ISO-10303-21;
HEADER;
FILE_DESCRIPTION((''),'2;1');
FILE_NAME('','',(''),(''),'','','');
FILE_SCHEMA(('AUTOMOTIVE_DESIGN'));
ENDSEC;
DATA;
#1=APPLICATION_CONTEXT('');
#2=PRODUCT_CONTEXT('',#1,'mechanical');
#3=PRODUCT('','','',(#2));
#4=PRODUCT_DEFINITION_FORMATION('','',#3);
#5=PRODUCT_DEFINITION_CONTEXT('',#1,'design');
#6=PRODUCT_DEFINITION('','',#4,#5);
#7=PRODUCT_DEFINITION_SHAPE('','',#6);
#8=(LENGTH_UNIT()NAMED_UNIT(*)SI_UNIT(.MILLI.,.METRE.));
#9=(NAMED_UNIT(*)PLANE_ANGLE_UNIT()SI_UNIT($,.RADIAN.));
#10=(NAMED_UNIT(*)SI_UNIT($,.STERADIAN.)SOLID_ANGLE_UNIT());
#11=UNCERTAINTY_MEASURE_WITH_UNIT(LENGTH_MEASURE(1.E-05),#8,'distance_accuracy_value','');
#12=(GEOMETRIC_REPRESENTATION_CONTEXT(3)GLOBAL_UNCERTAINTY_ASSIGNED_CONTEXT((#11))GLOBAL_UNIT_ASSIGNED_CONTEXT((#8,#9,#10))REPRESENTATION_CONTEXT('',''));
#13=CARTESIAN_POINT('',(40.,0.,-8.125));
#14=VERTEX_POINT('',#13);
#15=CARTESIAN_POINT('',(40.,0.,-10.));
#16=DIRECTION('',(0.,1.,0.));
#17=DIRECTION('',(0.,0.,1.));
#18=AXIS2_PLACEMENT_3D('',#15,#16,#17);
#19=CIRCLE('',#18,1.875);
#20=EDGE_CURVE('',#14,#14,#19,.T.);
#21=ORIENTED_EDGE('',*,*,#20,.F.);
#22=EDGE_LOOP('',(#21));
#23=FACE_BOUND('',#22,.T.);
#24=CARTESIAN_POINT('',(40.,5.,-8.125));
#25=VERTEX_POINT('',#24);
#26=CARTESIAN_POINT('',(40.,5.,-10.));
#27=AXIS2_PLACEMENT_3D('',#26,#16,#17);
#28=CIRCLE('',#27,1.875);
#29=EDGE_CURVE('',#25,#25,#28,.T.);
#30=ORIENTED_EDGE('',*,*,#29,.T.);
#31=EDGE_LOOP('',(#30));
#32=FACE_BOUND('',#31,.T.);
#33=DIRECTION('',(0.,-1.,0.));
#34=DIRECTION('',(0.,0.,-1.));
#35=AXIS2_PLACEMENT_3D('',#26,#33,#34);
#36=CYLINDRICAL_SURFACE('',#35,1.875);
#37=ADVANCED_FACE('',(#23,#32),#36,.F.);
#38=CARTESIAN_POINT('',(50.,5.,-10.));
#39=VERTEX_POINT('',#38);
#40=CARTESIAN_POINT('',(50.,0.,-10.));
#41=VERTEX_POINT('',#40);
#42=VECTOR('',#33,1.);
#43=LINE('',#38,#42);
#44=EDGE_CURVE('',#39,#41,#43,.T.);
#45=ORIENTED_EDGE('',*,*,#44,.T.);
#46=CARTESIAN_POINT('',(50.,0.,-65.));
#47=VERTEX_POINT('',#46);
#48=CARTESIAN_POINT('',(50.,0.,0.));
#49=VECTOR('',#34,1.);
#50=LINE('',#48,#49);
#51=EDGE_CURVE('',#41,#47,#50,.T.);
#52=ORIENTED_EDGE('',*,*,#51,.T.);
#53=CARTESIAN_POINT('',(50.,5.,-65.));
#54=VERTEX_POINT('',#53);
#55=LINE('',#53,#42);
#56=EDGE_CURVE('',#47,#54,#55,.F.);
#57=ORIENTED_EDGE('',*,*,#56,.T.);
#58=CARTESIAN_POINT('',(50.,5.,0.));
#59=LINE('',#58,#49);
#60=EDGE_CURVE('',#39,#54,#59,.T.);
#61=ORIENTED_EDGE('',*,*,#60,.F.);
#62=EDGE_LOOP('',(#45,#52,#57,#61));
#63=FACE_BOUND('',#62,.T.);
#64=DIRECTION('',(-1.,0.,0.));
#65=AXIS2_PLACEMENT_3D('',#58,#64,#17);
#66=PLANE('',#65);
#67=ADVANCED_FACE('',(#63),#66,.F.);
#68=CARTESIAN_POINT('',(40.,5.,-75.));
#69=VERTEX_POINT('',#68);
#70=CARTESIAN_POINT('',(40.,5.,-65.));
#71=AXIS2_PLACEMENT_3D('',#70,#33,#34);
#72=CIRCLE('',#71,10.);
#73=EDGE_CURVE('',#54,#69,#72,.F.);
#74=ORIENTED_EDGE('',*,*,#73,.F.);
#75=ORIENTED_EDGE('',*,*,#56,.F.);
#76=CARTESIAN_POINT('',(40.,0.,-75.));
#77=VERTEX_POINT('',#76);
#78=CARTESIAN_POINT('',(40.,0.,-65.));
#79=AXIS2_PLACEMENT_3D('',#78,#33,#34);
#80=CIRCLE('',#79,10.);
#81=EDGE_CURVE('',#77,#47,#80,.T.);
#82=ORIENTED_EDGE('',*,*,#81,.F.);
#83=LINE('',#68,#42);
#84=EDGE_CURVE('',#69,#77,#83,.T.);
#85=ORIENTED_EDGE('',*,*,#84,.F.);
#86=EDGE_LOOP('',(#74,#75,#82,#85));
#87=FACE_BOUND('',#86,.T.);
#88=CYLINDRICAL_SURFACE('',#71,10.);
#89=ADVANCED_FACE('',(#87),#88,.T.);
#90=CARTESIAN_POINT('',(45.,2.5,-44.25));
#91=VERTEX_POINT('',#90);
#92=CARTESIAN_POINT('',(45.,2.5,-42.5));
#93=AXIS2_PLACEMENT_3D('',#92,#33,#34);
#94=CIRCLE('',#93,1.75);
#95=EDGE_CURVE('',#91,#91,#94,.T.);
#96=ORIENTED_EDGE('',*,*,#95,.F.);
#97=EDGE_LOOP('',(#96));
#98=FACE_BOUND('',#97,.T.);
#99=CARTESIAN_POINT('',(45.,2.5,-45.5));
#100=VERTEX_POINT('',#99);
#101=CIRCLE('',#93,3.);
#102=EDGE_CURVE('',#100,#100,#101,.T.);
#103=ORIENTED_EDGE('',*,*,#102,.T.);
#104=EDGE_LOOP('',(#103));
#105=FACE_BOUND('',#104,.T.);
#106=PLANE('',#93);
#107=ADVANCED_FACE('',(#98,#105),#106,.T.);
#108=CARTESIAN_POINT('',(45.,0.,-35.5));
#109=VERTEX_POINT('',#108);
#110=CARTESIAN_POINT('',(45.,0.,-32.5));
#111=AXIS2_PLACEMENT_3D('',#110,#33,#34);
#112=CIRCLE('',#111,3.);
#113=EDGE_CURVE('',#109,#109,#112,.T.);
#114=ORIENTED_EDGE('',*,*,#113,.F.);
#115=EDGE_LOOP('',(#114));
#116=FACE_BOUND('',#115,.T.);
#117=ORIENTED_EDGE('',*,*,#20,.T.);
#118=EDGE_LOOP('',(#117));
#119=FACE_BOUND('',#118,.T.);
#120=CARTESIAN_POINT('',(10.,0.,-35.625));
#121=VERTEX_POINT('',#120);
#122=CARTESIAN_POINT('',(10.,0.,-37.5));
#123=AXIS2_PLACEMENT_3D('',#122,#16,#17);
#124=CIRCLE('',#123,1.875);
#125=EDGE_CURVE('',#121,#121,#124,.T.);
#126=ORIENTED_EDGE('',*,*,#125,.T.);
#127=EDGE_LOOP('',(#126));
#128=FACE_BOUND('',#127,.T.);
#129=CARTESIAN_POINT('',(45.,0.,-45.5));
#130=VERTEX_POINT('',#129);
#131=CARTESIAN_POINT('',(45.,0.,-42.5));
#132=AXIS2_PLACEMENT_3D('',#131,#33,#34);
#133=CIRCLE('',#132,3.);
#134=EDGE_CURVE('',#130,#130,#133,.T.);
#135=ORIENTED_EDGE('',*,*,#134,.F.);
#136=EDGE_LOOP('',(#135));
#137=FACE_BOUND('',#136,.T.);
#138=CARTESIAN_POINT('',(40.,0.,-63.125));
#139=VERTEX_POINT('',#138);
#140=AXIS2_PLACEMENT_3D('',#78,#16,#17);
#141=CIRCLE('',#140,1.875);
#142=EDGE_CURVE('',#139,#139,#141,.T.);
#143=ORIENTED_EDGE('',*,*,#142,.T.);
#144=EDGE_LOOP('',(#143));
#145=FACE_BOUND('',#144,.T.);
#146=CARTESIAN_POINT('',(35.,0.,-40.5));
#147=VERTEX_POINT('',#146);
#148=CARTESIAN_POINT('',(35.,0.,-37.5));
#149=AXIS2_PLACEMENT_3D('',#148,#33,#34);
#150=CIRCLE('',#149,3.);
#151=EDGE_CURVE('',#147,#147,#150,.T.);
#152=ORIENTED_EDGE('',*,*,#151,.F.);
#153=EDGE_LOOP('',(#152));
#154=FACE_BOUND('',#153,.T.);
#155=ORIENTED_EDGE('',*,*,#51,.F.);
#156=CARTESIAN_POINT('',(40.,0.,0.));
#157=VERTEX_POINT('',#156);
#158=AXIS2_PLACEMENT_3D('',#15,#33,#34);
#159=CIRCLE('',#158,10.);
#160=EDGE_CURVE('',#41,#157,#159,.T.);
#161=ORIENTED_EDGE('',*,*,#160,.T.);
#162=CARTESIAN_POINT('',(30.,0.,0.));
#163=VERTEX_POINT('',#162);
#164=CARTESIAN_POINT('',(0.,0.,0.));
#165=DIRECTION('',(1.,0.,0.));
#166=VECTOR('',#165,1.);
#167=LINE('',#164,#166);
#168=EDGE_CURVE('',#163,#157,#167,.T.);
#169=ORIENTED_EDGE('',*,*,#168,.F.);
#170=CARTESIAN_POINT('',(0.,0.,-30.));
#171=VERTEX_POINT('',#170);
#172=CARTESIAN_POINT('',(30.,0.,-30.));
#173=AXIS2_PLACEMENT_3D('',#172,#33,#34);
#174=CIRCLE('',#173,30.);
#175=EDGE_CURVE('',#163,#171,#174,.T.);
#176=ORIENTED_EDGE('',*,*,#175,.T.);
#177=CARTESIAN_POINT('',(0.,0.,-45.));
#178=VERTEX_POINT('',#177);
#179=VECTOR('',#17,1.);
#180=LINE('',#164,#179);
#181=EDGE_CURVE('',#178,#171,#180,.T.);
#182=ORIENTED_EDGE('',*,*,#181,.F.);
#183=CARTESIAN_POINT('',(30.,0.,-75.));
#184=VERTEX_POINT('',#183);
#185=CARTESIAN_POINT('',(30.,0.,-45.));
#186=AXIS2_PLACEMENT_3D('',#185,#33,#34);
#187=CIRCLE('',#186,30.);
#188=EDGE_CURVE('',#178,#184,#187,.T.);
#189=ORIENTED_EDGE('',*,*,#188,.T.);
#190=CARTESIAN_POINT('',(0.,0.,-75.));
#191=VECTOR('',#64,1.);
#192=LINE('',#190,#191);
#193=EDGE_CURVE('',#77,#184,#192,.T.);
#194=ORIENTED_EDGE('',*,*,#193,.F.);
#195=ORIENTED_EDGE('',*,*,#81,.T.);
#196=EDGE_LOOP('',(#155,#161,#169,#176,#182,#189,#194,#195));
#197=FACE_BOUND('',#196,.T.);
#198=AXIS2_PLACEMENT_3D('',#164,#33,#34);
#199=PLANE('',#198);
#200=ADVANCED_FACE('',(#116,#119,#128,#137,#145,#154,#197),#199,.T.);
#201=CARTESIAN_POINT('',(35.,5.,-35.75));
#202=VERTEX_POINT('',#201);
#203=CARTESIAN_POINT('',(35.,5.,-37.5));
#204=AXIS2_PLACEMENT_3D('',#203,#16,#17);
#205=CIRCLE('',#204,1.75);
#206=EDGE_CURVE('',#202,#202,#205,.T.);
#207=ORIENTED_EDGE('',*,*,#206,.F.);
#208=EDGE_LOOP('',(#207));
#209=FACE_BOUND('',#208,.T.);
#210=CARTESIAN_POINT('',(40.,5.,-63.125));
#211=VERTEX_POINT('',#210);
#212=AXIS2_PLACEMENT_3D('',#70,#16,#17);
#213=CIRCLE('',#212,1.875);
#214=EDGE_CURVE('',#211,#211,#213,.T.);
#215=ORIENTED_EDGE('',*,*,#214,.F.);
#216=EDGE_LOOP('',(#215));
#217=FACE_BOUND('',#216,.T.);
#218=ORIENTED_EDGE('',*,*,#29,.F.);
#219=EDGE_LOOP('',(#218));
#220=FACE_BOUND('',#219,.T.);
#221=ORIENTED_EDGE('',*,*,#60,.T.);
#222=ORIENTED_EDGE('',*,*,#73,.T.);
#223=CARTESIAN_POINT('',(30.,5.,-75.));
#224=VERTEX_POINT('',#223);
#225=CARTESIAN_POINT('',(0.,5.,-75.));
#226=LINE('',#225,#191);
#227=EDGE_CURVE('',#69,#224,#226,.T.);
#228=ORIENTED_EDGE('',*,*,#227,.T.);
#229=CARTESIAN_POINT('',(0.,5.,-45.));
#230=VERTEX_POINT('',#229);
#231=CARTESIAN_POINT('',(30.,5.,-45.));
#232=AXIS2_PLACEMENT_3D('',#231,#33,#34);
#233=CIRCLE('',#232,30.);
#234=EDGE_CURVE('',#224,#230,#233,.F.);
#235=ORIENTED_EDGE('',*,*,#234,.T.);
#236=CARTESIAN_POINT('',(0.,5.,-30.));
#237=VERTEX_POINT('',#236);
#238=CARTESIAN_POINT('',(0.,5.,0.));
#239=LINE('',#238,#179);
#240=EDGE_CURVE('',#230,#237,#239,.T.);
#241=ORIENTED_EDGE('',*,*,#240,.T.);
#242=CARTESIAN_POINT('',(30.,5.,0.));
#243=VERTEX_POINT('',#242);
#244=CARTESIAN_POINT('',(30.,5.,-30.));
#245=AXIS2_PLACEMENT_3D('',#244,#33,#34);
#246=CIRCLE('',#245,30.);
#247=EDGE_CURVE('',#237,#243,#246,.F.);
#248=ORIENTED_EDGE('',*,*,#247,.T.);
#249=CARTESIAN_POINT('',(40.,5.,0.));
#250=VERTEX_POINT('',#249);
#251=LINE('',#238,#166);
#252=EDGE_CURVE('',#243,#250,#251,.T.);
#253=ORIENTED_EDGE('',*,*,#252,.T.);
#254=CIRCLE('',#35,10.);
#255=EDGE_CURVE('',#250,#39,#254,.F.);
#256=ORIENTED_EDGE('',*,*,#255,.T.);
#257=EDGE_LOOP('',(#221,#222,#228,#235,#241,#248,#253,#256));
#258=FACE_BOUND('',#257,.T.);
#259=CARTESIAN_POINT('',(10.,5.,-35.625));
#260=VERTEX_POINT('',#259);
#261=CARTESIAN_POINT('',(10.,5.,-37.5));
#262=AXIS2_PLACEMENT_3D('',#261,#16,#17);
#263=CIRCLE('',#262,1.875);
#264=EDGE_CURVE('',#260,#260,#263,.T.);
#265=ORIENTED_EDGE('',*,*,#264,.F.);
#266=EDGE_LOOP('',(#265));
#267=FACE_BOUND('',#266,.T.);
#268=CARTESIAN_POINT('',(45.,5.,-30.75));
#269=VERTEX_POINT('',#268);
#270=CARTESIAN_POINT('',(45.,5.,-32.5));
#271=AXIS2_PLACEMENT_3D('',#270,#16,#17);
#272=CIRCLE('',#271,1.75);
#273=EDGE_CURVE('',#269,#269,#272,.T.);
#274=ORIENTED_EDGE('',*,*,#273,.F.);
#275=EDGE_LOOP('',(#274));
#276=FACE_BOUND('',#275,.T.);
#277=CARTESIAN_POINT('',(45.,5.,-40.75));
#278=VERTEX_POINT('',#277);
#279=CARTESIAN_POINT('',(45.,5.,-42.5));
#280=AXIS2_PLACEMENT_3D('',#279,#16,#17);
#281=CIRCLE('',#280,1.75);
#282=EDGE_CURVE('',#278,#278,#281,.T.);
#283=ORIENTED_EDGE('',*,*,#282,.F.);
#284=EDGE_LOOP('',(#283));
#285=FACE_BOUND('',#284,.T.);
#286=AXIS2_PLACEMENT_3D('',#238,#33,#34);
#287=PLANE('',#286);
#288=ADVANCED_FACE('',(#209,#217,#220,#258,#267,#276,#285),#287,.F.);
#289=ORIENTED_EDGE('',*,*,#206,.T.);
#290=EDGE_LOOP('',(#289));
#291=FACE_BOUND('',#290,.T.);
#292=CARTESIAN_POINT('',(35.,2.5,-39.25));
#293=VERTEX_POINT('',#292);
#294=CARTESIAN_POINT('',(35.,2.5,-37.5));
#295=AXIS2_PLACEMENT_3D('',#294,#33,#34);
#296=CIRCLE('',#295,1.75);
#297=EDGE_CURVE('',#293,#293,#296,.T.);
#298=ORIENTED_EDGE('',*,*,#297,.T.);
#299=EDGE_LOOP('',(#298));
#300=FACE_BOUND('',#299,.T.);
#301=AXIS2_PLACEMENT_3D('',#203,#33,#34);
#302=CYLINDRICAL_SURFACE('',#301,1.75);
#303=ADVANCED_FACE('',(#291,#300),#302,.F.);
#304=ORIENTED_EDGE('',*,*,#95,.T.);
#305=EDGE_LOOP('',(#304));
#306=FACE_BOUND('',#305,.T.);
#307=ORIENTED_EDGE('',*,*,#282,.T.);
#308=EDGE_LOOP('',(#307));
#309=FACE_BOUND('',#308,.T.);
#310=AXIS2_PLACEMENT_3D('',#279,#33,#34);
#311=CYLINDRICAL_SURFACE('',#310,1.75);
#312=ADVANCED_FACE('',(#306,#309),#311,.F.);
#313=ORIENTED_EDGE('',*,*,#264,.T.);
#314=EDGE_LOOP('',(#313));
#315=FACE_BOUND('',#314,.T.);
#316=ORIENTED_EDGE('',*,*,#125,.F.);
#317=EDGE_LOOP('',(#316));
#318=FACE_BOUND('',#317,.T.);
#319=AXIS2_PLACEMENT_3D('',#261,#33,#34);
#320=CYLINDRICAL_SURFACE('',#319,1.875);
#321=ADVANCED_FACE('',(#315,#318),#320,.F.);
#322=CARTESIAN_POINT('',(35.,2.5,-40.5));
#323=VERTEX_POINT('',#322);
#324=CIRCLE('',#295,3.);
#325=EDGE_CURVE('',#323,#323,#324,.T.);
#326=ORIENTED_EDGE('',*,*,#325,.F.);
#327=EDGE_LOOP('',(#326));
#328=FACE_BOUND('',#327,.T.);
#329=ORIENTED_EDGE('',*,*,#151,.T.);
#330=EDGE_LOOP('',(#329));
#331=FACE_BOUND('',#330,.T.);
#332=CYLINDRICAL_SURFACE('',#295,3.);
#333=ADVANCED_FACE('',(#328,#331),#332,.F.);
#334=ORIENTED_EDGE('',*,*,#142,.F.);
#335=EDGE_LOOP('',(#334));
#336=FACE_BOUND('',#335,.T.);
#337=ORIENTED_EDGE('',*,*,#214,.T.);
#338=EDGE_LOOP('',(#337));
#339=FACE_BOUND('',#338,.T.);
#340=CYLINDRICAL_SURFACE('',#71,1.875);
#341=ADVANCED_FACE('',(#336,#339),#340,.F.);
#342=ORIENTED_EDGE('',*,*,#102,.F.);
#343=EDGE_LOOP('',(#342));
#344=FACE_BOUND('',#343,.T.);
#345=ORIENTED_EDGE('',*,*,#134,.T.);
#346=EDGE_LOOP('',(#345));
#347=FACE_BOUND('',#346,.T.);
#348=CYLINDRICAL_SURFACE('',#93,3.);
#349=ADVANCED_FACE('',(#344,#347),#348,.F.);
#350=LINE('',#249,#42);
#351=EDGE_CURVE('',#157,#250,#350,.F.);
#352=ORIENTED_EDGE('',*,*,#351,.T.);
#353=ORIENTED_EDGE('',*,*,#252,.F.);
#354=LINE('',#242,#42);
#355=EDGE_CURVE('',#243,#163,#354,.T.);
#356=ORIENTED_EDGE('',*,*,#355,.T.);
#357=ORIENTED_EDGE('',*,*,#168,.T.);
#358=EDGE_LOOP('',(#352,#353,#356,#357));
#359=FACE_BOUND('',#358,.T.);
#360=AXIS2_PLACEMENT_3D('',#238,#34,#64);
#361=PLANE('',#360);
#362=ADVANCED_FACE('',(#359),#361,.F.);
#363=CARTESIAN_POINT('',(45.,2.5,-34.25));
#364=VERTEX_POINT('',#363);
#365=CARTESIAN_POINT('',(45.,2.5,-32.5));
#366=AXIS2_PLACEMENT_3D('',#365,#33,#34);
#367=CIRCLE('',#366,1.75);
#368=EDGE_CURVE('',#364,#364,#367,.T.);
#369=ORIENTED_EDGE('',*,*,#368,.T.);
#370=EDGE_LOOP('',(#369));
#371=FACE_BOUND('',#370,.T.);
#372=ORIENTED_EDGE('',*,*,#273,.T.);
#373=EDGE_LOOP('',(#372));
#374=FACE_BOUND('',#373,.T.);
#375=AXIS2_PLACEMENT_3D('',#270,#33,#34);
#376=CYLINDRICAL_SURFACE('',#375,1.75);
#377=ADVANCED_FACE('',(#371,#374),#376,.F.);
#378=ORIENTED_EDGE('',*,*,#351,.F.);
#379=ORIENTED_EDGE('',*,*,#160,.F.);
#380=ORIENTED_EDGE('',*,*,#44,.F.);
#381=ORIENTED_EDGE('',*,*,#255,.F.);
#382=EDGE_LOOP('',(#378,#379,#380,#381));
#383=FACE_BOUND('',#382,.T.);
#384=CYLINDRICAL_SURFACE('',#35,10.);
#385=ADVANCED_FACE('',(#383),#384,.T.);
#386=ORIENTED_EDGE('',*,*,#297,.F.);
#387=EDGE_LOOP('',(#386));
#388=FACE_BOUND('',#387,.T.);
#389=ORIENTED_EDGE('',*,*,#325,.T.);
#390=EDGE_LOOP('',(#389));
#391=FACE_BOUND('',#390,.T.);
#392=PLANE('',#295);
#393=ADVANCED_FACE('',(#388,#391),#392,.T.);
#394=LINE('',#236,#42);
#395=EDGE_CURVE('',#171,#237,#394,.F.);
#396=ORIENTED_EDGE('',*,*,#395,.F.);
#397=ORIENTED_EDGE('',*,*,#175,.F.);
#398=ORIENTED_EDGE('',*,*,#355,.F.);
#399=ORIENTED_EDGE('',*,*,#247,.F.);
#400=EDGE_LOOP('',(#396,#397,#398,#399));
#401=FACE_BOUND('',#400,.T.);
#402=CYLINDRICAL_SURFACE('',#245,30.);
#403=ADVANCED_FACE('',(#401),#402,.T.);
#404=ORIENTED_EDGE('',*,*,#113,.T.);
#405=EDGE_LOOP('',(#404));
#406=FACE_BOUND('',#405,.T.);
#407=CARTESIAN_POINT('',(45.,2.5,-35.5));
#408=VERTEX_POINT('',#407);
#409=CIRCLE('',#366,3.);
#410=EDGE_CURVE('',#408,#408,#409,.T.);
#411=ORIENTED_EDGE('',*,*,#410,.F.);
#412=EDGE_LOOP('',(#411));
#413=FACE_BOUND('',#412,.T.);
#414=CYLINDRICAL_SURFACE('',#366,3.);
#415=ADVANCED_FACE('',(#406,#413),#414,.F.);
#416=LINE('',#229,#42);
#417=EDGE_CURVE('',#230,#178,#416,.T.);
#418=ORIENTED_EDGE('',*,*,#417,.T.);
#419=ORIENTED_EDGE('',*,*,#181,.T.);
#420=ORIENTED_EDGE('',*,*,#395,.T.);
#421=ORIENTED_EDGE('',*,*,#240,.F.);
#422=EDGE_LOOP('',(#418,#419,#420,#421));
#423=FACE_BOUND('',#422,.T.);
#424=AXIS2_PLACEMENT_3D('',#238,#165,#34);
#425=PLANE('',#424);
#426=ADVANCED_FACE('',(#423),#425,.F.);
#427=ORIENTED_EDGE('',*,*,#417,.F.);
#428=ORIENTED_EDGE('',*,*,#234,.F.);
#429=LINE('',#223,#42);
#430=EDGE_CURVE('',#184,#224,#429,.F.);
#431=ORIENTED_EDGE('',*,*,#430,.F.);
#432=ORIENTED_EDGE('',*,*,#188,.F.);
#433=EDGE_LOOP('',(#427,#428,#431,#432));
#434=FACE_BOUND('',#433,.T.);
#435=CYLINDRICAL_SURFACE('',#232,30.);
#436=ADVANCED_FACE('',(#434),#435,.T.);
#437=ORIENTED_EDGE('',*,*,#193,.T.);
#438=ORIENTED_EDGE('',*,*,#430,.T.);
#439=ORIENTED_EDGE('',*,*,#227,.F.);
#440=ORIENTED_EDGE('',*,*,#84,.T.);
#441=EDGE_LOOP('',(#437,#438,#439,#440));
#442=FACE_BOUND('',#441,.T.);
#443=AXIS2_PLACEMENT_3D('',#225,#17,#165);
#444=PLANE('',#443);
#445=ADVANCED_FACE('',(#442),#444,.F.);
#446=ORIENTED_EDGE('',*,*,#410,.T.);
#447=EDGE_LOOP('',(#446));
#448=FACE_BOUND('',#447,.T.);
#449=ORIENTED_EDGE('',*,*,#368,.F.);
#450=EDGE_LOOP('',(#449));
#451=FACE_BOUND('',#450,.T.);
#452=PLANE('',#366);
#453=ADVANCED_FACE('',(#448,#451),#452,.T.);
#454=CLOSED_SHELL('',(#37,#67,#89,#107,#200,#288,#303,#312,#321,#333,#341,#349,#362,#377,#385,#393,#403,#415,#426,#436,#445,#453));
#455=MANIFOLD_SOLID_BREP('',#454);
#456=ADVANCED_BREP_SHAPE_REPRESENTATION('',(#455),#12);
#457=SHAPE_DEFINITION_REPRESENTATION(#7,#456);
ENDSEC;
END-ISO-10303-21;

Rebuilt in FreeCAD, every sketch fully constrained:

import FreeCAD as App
import Part
import Sketcher


def edges_at(feature, points):
    """Names of the edges that pass closest to the given points."""
    edges = feature.Shape.Edges
    near = lambda p: min(range(len(edges)), key=lambda i: edges[i].distToShape(Part.Vertex(*p))[0])
    return sorted({f"Edge{near(p) + 1}" for p in points})


def add_polygon(sketch, points):
    """Adds a closed chain of lines whose ends are joined by coincident constraints."""
    first, n = sketch.GeometryCount, len(points)
    for a, b in zip(points, points[1:] + points[:1]):
        sketch.addGeometry(Part.LineSegment(App.Vector(*a, 0), App.Vector(*b, 0)), False)
    for i in range(n):
        sketch.addConstraint(Sketcher.Constraint("Coincident", first + i, 2, first + (i + 1) % n, 1))

doc = App.newDocument("Part")
body = doc.addObject("PartDesign::Body", "Body")

# Sketch on XZ plane
sketch1 = body.newObject("Sketcher::SketchObject", "Sketch")
sketch1.AttachmentSupport = (doc.getObject("XZ_Plane"), [""])
sketch1.MapMode = "FlatFace"
add_polygon(sketch1, [(0, -75), (0, 0), (50, 0), (50, -75)])  # lines 0-3
sketch1.addGeometry(Part.Circle(App.Vector(40, -10, 0), App.Vector(0, 0, 1), 1.875), False)  # 4
sketch1.addGeometry(Part.Circle(App.Vector(45, -32.5, 0), App.Vector(0, 0, 1), 1.75), False)  # 5
sketch1.addGeometry(Part.Circle(App.Vector(10, -37.5, 0), App.Vector(0, 0, 1), 1.875), False)  # 6
sketch1.addGeometry(Part.Circle(App.Vector(35, -37.5, 0), App.Vector(0, 0, 1), 1.75), False)  # 7
sketch1.addGeometry(Part.Circle(App.Vector(45, -42.5, 0), App.Vector(0, 0, 1), 1.75), False)  # 8
sketch1.addGeometry(Part.Circle(App.Vector(40, -65, 0), App.Vector(0, 0, 1), 1.875), False)  # 9
sketch1.addConstraint([
    Sketcher.Constraint("Vertical", 0),
    Sketcher.Constraint("Horizontal", 1),
    Sketcher.Constraint("Vertical", 2),
    Sketcher.Constraint("Horizontal", 3),
    Sketcher.Constraint("Coincident", 0, 2, -1, 1),
    Sketcher.Constraint("Equal", 4, 6),
    Sketcher.Constraint("Equal", 5, 7),
    Sketcher.Constraint("Equal", 7, 8),
    Sketcher.Constraint("Equal", 6, 9),
    Sketcher.Constraint("Horizontal", 6, 3, 7, 3),
    Sketcher.Constraint("Vertical", 5, 3, 8, 3),
    Sketcher.Constraint("Vertical", 4, 3, 9, 3),
    Sketcher.Constraint("Diameter", 5, 3.5),
    Sketcher.Constraint("Diameter", 4, 3.75),
    Sketcher.Constraint("DistanceX", 1, 1, 1, 2, 50.0),
    Sketcher.Constraint("DistanceY", 0, 1, 0, 2, 75.0),
    Sketcher.Constraint("DistanceX", -1, 1, 4, 3, 40.0),
    Sketcher.Constraint("DistanceY", 4, 3, -1, 1, 10.0),
    Sketcher.Constraint("DistanceX", -1, 1, 5, 3, 45.0),
    Sketcher.Constraint("DistanceX", -1, 1, 6, 3, 10.0),
    Sketcher.Constraint("DistanceX", -1, 1, 7, 3, 35.0),
    Sketcher.Constraint("DistanceY", 9, 3, -1, 1, 65.0),
    Sketcher.Constraint("DistanceY", 6, 3, 5, 3, 5.0),
    Sketcher.Constraint("DistanceY", 8, 3, 5, 3, 10.0),
    Sketcher.Constraint("DistanceY", 5, 3, -1, 1, 32.5),
])
pad1 = body.newObject("PartDesign::Pad", "Pad")
pad1.Profile = sketch1
pad1.Length = 5
pad1.Reversed = True

# Sketch on XZ plane
sketch2 = body.newObject("Sketcher::SketchObject", "Sketch001")
sketch2.AttachmentSupport = (doc.getObject("XZ_Plane"), [""])
sketch2.MapMode = "FlatFace"
sketch2.addGeometry([
    Part.Circle(App.Vector(45, -32.5, 0), App.Vector(0, 0, 1), 3),
    Part.Circle(App.Vector(45, -42.5, 0), App.Vector(0, 0, 1), 3),
    Part.Circle(App.Vector(35, -37.5, 0), App.Vector(0, 0, 1), 3),
], False)
sketch2.addConstraint([
    Sketcher.Constraint("Equal", 0, 1),
    Sketcher.Constraint("Equal", 1, 2),
    Sketcher.Constraint("Vertical", 0, 3, 1, 3),
    Sketcher.Constraint("Diameter", 0, 6.0),
    Sketcher.Constraint("DistanceX", -1, 1, 0, 3, 45.0),
    Sketcher.Constraint("DistanceX", -1, 1, 2, 3, 35.0),
    Sketcher.Constraint("DistanceY", 1, 3, 0, 3, 10.0),
    Sketcher.Constraint("DistanceY", 2, 3, 0, 3, 5.0),
    Sketcher.Constraint("DistanceY", 0, 3, -1, 1, 32.5),
])
pocket1 = body.newObject("PartDesign::Pocket", "Pocket")
pocket1.Profile = sketch2
pocket1.Length = 2.5
doc.recompute()

fillet = body.newObject("PartDesign::Fillet", "Fillet")
fillet.Base = (pocket1, edges_at(pocket1, [(0, 2.5, -75), (0, 2.5, 0)]))
fillet.Radius = 30
doc.recompute()

fillet2 = body.newObject("PartDesign::Fillet", "Fillet001")
fillet2.Base = (fillet, edges_at(fillet, [(50, 2.5, -75), (50, 2.5, 0)]))
fillet2.Radius = 10

doc.recompute()
